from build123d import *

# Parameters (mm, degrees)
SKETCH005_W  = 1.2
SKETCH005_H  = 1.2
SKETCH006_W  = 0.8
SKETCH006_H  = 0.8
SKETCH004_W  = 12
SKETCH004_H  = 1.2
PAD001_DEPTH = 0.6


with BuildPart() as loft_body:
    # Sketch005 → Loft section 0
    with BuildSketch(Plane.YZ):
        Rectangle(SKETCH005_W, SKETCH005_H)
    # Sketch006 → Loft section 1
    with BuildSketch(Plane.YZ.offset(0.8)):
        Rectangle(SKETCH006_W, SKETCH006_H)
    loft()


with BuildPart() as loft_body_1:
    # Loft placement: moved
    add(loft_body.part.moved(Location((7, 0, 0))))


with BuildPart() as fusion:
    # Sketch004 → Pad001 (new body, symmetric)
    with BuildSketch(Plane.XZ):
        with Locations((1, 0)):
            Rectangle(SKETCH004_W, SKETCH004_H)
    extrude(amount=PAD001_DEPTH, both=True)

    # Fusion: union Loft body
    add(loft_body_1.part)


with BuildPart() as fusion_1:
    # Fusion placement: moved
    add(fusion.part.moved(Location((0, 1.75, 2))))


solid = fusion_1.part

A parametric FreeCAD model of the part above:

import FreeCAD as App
import Part
import Sketcher
Q = App.Units.Quantity


def add_polygon(sketch, points):
    """Adds a closed chain of lines whose ends are joined by coincident constraints."""
    first, n = sketch.GeometryCount, len(points)
    for a, b in zip(points, points[1:] + points[:1]):
        sketch.addGeometry(Part.LineSegment(App.Vector(*a, 0), App.Vector(*b, 0)), False)
    for i in range(n):
        sketch.addConstraint(Sketcher.Constraint("Coincident", first + i, 2, first + (i + 1) % n, 1))

doc = App.newDocument("Part")
body = doc.addObject("PartDesign::Body", "Body")

# Sketch on YZ plane
sketch1 = doc.addObject("Sketcher::SketchObject", "Sketch")
body.addObject(sketch1)
sketch1.AttachmentSupport = (doc.YZ_Plane, [""])
sketch1.MapMode = "FlatFace"
add_polygon(sketch1, [(-0.6, 0.6), (-0.6, -0.6), (0.6, -0.6), (0.6, 0.6)])  # lines 0-3
sketch1.addConstraint(Sketcher.Constraint("Vertical", 0))
sketch1.addConstraint(Sketcher.Constraint("Horizontal", 1))
sketch1.addConstraint(Sketcher.Constraint("Vertical", 2))
sketch1.addConstraint(Sketcher.Constraint("Horizontal", 3))
sketch1.addConstraint(Sketcher.Constraint("Symmetric", 0, 2, 2, 2, -1, 1))
sketch1.addConstraint(Sketcher.Constraint("Equal", 3, 0))
sketch1.addConstraint(Sketcher.Constraint("DistanceX", 1, 1, 1, 2, Q("1.2 mm")))

# Sketch on YZ plane
sketch2 = doc.addObject("Sketcher::SketchObject", "Sketch001")
body.addObject(sketch2)
sketch2.AttachmentSupport = (doc.YZ_Plane, [""])
sketch2.MapMode = "FlatFace"
sketch2.AttachmentOffset = App.Placement(App.Vector(0, 0, 0.8), App.Rotation())
add_polygon(sketch2, [(-0.4, 0.4), (-0.4, -0.4), (0.4, -0.4), (0.4, 0.4)])  # lines 0-3
sketch2.addConstraint(Sketcher.Constraint("Vertical", 0))
sketch2.addConstraint(Sketcher.Constraint("Horizontal", 1))
sketch2.addConstraint(Sketcher.Constraint("Vertical", 2))
sketch2.addConstraint(Sketcher.Constraint("Horizontal", 3))
sketch2.addConstraint(Sketcher.Constraint("Symmetric", 0, 2, 2, 2, -1, 1))
sketch2.addConstraint(Sketcher.Constraint("Equal", 3, 0))
sketch2.addConstraint(Sketcher.Constraint("DistanceX", 1, 1, 1, 2, Q("0.8 mm")))

additiveloft = doc.addObject("PartDesign::AdditiveLoft", "AdditiveLoft")
body.addObject(additiveloft)
additiveloft.Profile = sketch1
additiveloft.Sections = [sketch2]
body2 = doc.addObject("PartDesign::Body", "Body001")
doc.recompute()

body.Placement = App.Placement(App.Vector(7, 0, 0), App.Rotation(App.Vector(0, 0, 1), 0))
boolean = doc.addObject("PartDesign::Boolean", "Boolean")
body2.addObject(boolean)
boolean.Type = "Fuse"
boolean.addObjects([body])
body3 = doc.addObject("PartDesign::Body", "Body002")

# Sketch on XZ plane
sketch3 = doc.addObject("Sketcher::SketchObject", "Sketch002")
body3.addObject(sketch3)
sketch3.AttachmentSupport = (doc.getObject("XZ_Plane002"), [""])
sketch3.MapMode = "FlatFace"
add_polygon(sketch3, [(-5, 0.6), (-5, -0.6), (7, -0.6), (7, 0.6)])  # lines 0-3
sketch3.addConstraint(Sketcher.Constraint("Vertical", 0))
sketch3.addConstraint(Sketcher.Constraint("Horizontal", 1))
sketch3.addConstraint(Sketcher.Constraint("Vertical", 2))
sketch3.addConstraint(Sketcher.Constraint("Horizontal", 3))
sketch3.addConstraint(Sketcher.Constraint("DistanceX", 1, 1, 1, 2, Q("12 mm")))
sketch3.addConstraint(Sketcher.Constraint("DistanceY", 0, 2, 0, 1, Q("1.2 mm")))
sketch3.addConstraint(Sketcher.Constraint("DistanceX", 0, 2, -1, 1, Q("5 mm")))
sketch3.addConstraint(Sketcher.Constraint("DistanceY", 0, 2, -1, 1, Q("0.6 mm")))
pad1 = doc.addObject("PartDesign::Pad", "Pad")
body3.addObject(pad1)
pad1.Profile = sketch3
pad1.Length = 1.2
pad1.Midplane = True
doc.recompute()

boolean2 = doc.addObject("PartDesign::Boolean", "Boolean001")
body3.addObject(boolean2)
boolean2.Type = "Fuse"
boolean2.addObjects([body2])
body4 = doc.addObject("PartDesign::Body", "Body003")
doc.recompute()

body3.Placement = App.Placement(App.Vector(0, 1.75, 2), App.Rotation(App.Vector(0, 0, 1), 0))
boolean3 = doc.addObject("PartDesign::Boolean", "Boolean002")
body4.addObject(boolean3)
boolean3.Type = "Fuse"
boolean3.addObjects([body3])

doc.recompute()
